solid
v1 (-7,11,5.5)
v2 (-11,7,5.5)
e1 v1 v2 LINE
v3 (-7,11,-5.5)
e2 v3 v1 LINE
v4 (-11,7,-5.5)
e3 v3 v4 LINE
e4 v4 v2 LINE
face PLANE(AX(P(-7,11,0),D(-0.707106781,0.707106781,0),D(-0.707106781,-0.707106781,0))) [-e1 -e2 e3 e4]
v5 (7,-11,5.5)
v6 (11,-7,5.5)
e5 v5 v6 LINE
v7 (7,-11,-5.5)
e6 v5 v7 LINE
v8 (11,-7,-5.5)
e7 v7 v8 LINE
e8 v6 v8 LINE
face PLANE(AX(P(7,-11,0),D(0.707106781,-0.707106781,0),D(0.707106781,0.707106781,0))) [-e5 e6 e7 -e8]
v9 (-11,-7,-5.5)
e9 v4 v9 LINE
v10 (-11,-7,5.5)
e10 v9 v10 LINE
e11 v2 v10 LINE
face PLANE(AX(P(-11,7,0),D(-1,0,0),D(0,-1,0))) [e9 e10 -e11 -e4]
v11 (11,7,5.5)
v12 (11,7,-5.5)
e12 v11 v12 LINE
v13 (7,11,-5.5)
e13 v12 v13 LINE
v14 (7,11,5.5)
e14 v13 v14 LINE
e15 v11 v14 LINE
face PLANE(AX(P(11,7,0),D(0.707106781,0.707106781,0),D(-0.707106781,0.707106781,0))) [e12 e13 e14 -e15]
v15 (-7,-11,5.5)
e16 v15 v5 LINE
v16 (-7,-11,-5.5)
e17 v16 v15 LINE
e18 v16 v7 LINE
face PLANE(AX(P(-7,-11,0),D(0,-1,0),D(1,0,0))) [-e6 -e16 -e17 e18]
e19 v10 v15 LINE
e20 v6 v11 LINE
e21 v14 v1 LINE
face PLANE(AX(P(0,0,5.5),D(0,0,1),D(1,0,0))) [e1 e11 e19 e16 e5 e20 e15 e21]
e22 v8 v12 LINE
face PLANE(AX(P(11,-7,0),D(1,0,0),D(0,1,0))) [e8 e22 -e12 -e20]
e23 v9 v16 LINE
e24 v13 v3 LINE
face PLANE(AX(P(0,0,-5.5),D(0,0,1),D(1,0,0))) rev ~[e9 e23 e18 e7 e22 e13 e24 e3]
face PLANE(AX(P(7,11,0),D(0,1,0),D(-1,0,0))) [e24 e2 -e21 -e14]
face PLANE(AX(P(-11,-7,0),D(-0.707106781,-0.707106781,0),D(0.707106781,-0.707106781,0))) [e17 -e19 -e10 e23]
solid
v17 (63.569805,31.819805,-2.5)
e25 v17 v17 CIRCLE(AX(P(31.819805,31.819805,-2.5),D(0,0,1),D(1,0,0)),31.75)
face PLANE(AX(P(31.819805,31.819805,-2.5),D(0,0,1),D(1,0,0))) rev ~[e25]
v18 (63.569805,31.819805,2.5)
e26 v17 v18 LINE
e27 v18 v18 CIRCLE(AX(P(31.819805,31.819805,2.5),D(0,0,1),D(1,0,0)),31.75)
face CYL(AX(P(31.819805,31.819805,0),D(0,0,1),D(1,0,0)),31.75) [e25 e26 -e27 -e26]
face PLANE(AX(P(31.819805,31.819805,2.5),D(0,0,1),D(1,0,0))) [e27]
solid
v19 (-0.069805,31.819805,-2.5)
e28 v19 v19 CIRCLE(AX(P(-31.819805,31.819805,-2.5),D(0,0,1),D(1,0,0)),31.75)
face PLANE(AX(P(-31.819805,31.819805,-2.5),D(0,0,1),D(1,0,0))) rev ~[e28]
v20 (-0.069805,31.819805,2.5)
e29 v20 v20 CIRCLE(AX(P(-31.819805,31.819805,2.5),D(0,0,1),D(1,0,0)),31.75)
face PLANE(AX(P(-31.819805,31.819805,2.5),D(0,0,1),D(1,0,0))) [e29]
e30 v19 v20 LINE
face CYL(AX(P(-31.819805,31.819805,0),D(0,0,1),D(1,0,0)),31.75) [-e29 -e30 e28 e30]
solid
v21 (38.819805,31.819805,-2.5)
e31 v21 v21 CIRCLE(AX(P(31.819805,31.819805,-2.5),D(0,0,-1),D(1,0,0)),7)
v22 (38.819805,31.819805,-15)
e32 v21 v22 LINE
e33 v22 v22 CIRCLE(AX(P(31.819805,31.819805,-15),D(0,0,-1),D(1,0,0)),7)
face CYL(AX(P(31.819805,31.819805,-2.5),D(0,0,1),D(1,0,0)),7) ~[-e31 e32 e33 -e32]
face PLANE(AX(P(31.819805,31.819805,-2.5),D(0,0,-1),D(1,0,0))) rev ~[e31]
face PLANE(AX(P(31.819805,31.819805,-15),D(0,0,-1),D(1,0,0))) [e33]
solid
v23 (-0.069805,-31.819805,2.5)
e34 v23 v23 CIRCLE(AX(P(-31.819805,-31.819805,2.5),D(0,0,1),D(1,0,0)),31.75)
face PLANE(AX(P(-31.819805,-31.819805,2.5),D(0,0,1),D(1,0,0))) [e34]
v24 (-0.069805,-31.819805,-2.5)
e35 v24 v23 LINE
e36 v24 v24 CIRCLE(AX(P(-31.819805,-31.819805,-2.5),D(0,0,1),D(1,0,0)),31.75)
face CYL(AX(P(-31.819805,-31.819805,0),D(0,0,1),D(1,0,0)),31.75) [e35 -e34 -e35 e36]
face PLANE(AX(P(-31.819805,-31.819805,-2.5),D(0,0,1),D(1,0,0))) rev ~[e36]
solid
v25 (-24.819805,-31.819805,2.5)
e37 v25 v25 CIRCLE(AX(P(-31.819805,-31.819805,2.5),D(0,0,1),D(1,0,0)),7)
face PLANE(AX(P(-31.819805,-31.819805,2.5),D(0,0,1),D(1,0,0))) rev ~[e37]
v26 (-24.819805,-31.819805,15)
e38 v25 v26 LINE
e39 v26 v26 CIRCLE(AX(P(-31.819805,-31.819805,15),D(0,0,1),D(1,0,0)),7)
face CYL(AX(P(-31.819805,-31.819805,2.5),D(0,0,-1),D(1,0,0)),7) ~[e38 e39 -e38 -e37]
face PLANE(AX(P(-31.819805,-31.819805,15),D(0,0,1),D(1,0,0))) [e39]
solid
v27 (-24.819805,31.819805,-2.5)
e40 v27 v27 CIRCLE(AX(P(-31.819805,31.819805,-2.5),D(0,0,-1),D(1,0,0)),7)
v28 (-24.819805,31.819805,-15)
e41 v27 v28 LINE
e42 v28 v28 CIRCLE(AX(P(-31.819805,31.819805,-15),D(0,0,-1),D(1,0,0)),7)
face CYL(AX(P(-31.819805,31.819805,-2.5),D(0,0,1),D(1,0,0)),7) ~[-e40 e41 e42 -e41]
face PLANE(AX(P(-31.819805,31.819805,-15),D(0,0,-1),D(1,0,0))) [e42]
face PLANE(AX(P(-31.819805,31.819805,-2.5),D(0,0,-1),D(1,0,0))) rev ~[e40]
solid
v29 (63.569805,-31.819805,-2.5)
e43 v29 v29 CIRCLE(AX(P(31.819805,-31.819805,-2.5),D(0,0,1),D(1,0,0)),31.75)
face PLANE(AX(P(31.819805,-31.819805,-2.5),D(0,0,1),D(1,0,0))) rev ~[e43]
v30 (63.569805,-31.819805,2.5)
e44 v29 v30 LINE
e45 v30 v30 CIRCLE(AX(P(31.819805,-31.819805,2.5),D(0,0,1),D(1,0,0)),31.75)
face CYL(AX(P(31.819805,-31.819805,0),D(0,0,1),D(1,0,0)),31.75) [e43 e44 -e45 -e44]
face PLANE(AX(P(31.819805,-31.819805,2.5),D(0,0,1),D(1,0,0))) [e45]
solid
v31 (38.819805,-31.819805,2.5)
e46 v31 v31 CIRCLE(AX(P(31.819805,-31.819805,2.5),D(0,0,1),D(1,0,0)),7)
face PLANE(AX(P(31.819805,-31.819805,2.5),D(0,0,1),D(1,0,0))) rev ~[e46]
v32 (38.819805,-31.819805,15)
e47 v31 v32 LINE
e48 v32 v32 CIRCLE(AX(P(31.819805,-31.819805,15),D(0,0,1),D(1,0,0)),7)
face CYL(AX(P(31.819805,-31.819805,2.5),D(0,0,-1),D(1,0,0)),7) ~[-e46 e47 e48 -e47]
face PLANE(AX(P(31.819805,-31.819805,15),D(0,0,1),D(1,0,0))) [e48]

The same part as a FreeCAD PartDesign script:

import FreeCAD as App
import Part
import Sketcher
Q = App.Units.Quantity

doc = App.newDocument("Part")
body = doc.addObject("PartDesign::Body", "Body")

sketch1 = body.newObject("Sketcher::SketchObject", "Sketch")
sketch1.AttachmentSupport = (doc.getObject("XY_Plane"), [""])
sketch1.MapMode = "FlatFace"
sketch1.addGeometry(Part.Circle(App.Vector(-32, -32, 0), App.Vector(0, 0, 1), 32), False)
sketch1.addConstraint([
    Sketcher.Constraint("Diameter", 0, Q("63.5 mm")),
    Sketcher.Constraint("DistanceX", 0, 3, -1, 1, Q("31.819805 mm")),
    Sketcher.Constraint("DistanceY", 0, 3, -1, 1, Q("31.819805 mm")),
])
pad1 = body.newObject("PartDesign::Pad", "Pad")
pad1.Profile = sketch1
pad1.Length = 5
pad1.Midplane = True
body2 = doc.addObject("PartDesign::Body", "Body001")

sketch2 = body2.newObject("Sketcher::SketchObject", "Sketch001")
sketch2.AttachmentSupport = (doc.getObject("XY_Plane001"), [""])
sketch2.MapMode = "FlatFace"
sketch2.addGeometry(Part.Circle(App.Vector(-32, 32, 0), App.Vector(0, 0, 1), 32), False)
sketch2.addConstraint([
    Sketcher.Constraint("Diameter", 0, Q("63.5 mm")),
    Sketcher.Constraint("DistanceX", 0, 3, -1, 1, Q("31.819805 mm")),
    Sketcher.Constraint("DistanceY", -1, 1, 0, 3, Q("31.819805 mm")),
])
pad2 = body2.newObject("PartDesign::Pad", "Pad001")
pad2.Profile = sketch2
pad2.Length = 5
pad2.Midplane = True
body3 = doc.addObject("PartDesign::Body", "Body002")

sketch3 = body3.newObject("Sketcher::SketchObject", "Sketch002")
sketch3.AttachmentSupport = (doc.getObject("XY_Plane002"), [""])
sketch3.MapMode = "FlatFace"
sketch3.addGeometry(Part.Circle(App.Vector(32, 32, 0), App.Vector(0, 0, 1), 32), False)
sketch3.addConstraint([
    Sketcher.Constraint("Diameter", 0, Q("63.5 mm")),
    Sketcher.Constraint("DistanceX", -1, 1, 0, 3, Q("31.819805 mm")),
    Sketcher.Constraint("DistanceY", -1, 1, 0, 3, Q("31.819805 mm")),
])
pad3 = body3.newObject("PartDesign::Pad", "Pad002")
pad3.Profile = sketch3
pad3.Length = 5
pad3.Midplane = True
body4 = doc.addObject("PartDesign::Body", "Body003")

sketch4 = body4.newObject("Sketcher::SketchObject", "Sketch003")
sketch4.AttachmentSupport = (doc.getObject("XY_Plane003"), [""])
sketch4.MapMode = "FlatFace"
sketch4.addGeometry(Part.Circle(App.Vector(32, -32, 0), App.Vector(0, 0, 1), 32), False)
sketch4.addConstraint([
    Sketcher.Constraint("Diameter", 0, Q("63.5 mm")),
    Sketcher.Constraint("DistanceX", -1, 1, 0, 3, Q("31.819805 mm")),
    Sketcher.Constraint("DistanceY", 0, 3, -1, 1, Q("31.819805 mm")),
])
pad4 = body4.newObject("PartDesign::Pad", "Pad003")
pad4.Profile = sketch4
pad4.Length = 5
pad4.Midplane = True
body5 = doc.addObject("PartDesign::Body", "Body004")

sketch5 = body5.newObject("Sketcher::SketchObject", "Sketch004")
sketch5.AttachmentSupport = (doc.getObject("XY_Plane004"), [""])
sketch5.MapMode = "FlatFace"
sketch5.AttachmentOffset = App.Placement(App.Vector(0, 0, 2.5), App.Rotation())
sketch5.addGeometry(Part.Circle(App.Vector(-32, -32, 0), App.Vector(0, 0, 1), 7), False)
sketch5.addConstraint([
    Sketcher.Constraint("Diameter", 0, Q("14 mm")),
    Sketcher.Constraint("DistanceX", 0, 3, -1, 1, Q("31.819805 mm")),
    Sketcher.Constraint("DistanceY", 0, 3, -1, 1, Q("31.819805 mm")),
])
pad5 = body5.newObject("PartDesign::Pad", "Pad004")
pad5.Profile = sketch5
pad5.Length = 12.5
body6 = doc.addObject("PartDesign::Body", "Body005")

sketch6 = body6.newObject("Sketcher::SketchObject", "Sketch005")
sketch6.AttachmentSupport = (doc.getObject("XY_Plane005"), [""])
sketch6.MapMode = "FlatFace"
sketch6.AttachmentOffset = App.Placement(App.Vector(0, 0, 2.5), App.Rotation())
sketch6.addGeometry(Part.Circle(App.Vector(32, -32, 0), App.Vector(0, 0, 1), 7), False)
sketch6.addConstraint([
    Sketcher.Constraint("Diameter", 0, Q("14 mm")),
    Sketcher.Constraint("DistanceX", -1, 1, 0, 3, Q("31.819805 mm")),
    Sketcher.Constraint("DistanceY", 0, 3, -1, 1, Q("31.819805 mm")),
])
pad6 = body6.newObject("PartDesign::Pad", "Pad005")
pad6.Profile = sketch6
pad6.Length = 12.5
body7 = doc.addObject("PartDesign::Body", "Body006")

sketch7 = body7.newObject("Sketcher::SketchObject", "Sketch006")
sketch7.AttachmentSupport = (doc.getObject("XY_Plane006"), [""])
sketch7.MapMode = "FlatFace"
sketch7.AttachmentOffset = App.Placement(App.Vector(0, 0, -2.5), App.Rotation())
sketch7.addGeometry(Part.Circle(App.Vector(-32, 32, 0), App.Vector(0, 0, 1), 7), False)
sketch7.addConstraint([
    Sketcher.Constraint("Diameter", 0, Q("14 mm")),
    Sketcher.Constraint("DistanceX", 0, 3, -1, 1, Q("31.819805 mm")),
    Sketcher.Constraint("DistanceY", -1, 1, 0, 3, Q("31.819805 mm")),
])
pad7 = body7.newObject("PartDesign::Pad", "Pad006")
pad7.Profile = sketch7
pad7.Length = 12.5
pad7.Reversed = True
body8 = doc.addObject("PartDesign::Body", "Body007")

sketch8 = body8.newObject("Sketcher::SketchObject", "Sketch007")
sketch8.AttachmentSupport = (doc.getObject("XY_Plane007"), [""])
sketch8.MapMode = "FlatFace"
sketch8.AttachmentOffset = App.Placement(App.Vector(0, 0, -2.5), App.Rotation())
sketch8.addGeometry(Part.Circle(App.Vector(32, 32, 0), App.Vector(0, 0, 1), 7), False)
sketch8.addConstraint([
    Sketcher.Constraint("Diameter", 0, Q("14 mm")),
    Sketcher.Constraint("DistanceX", -1, 1, 0, 3, Q("31.819805 mm")),
    Sketcher.Constraint("DistanceY", -1, 1, 0, 3, Q("31.819805 mm")),
])
pad8 = body8.newObject("PartDesign::Pad", "Pad007")
pad8.Profile = sketch8
pad8.Length = 12.5
pad8.Reversed = True
body9 = doc.addObject("PartDesign::Body", "Body008")

sketch9 = body9.newObject("Sketcher::SketchObject", "Sketch008")
sketch9.AttachmentSupport = (doc.getObject("XY_Plane008"), [""])
sketch9.MapMode = "FlatFace"
sketch9.addGeometry([
    Part.LineSegment(App.Vector(11, 7, 0), App.Vector(7, 11, 0)),
    Part.LineSegment(App.Vector(7, 11, 0), App.Vector(-7, 11, 0)),
    Part.LineSegment(App.Vector(-7, 11, 0), App.Vector(-11, 7, 0)),
    Part.LineSegment(App.Vector(-11, 7, 0), App.Vector(-11, -7, 0)),
    Part.LineSegment(App.Vector(-11, -7, 0), App.Vector(-7, -11, 0)),
    Part.LineSegment(App.Vector(-7, -11, 0), App.Vector(7, -11, 0)),
    Part.LineSegment(App.Vector(7, -11, 0), App.Vector(11, -7, 0)),
    Part.LineSegment(App.Vector(11, -7, 0), App.Vector(11, 7, 0)),
], False)
sketch9.addConstraint([
    Sketcher.Constraint("Coincident", 0, 2, 1, 1),
    Sketcher.Constraint("Coincident", 1, 2, 2, 1),
    Sketcher.Constraint("Coincident", 2, 2, 3, 1),
    Sketcher.Constraint("Coincident", 3, 2, 4, 1),
    Sketcher.Constraint("Coincident", 4, 2, 5, 1),
    Sketcher.Constraint("Coincident", 5, 2, 6, 1),
    Sketcher.Constraint("Coincident", 6, 2, 7, 1),
    Sketcher.Constraint("Coincident", 7, 2, 0, 1),
    Sketcher.Constraint("Horizontal", 1),
    Sketcher.Constraint("Vertical", 3),
    Sketcher.Constraint("Horizontal", 5),
    Sketcher.Constraint("Vertical", 7),
    Sketcher.Constraint("Symmetric", 0, 2, 4, 2, -1, 1),
    Sketcher.Constraint("Symmetric", 2, 2, 6, 2, -1, 1),
    Sketcher.Constraint("Perpendicular", 0, 2),
    Sketcher.Constraint("Perpendicular", 2, 4),
    Sketcher.Constraint("Perpendicular", 4, 6),
    Sketcher.Constraint("Horizontal", 3, 2, 6, 2),
    Sketcher.Constraint("Vertical", 1, 2, 4, 2),
    Sketcher.Constraint("Equal", 5, 3),
    Sketcher.Constraint("DistanceX", 1, 2, 1, 1, Q("14 mm")),
    Sketcher.Constraint("DistanceY", -1, 1, 0, 2, Q("11 mm")),
])
pad9 = body9.newObject("PartDesign::Pad", "Pad008")
pad9.Profile = sketch9
pad9.Length = 11
pad9.Midplane = True

doc.recompute()
